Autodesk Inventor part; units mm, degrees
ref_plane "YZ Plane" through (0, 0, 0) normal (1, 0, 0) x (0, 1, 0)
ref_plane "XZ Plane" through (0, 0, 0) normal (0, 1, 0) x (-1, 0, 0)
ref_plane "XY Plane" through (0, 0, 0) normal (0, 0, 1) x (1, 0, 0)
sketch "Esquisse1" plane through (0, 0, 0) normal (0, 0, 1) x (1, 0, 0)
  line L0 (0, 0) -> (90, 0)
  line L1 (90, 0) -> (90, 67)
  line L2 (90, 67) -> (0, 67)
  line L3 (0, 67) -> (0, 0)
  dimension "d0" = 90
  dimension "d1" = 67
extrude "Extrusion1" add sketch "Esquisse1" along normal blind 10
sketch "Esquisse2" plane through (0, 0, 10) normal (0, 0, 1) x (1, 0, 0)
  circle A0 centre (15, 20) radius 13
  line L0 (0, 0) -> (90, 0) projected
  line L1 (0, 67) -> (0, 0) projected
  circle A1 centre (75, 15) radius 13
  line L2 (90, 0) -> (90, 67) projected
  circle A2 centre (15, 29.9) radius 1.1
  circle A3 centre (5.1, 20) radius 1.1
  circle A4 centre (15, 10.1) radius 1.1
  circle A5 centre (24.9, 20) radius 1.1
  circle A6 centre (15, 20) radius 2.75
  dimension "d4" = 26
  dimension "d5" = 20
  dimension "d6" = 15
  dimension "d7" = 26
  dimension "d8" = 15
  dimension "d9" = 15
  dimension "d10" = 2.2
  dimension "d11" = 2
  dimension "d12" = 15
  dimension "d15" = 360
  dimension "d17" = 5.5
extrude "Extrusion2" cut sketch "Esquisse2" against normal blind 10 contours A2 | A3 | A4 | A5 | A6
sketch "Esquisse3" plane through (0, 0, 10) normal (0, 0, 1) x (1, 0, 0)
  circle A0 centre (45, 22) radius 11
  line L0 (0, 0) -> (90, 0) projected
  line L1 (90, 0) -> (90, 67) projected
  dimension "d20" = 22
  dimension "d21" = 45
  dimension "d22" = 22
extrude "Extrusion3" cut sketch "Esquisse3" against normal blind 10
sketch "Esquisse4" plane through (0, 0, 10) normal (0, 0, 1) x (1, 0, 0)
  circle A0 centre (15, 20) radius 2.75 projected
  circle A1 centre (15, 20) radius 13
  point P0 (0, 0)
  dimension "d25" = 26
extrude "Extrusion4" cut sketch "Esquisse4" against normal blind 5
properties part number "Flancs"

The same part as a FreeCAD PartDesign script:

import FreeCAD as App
import Part
import Sketcher
from FreeCAD import Vector


def add_polygon(sketch, points):
    """Adds a closed chain of lines whose ends are joined by coincident constraints."""
    first, n = sketch.GeometryCount, len(points)
    for a, b in zip(points, points[1:] + points[:1]):
        sketch.addGeometry(Part.LineSegment(App.Vector(*a, 0), App.Vector(*b, 0)), False)
    for i in range(n):
        sketch.addConstraint(Sketcher.Constraint("Coincident", first + i, 2, first + (i + 1) % n, 1))

doc = App.newDocument("Part")
body = doc.addObject("PartDesign::Body", "Body")

# Sketch on XY plane
sketch1 = body.newObject("Sketcher::SketchObject", "Sketch")
sketch1.AttachmentSupport = (doc.getObject("XY_Plane"), [""])
sketch1.MapMode = "FlatFace"
add_polygon(sketch1, [(0, 67), (0, 0), (90, 0), (90, 67)])  # lines 0-3
sketch1.addConstraint(Sketcher.Constraint("Vertical", 0))
sketch1.addConstraint(Sketcher.Constraint("Horizontal", 1))
sketch1.addConstraint(Sketcher.Constraint("Vertical", 2))
sketch1.addConstraint(Sketcher.Constraint("Horizontal", 3))
sketch1.addConstraint(Sketcher.Constraint("Coincident", 0, 2, -1, 1))
sketch1.addConstraint(Sketcher.Constraint("DistanceX", 1, 1, 1, 2, 90.0))
sketch1.addConstraint(Sketcher.Constraint("DistanceY", 0, 2, 0, 1, 67.0))
pad1 = body.newObject("PartDesign::Pad", "Pad")
pad1.Profile = sketch1
pad1.Length = 10

# Sketch on XY plane
sketch2 = body.newObject("Sketcher::SketchObject", "Sketch001")
sketch2.AttachmentSupport = (doc.getObject("XY_Plane"), [""])
sketch2.MapMode = "FlatFace"
sketch2.AttachmentOffset = App.Placement(Vector(0, 0, 10), App.Rotation())
sketch2.addGeometry(Part.Circle(Vector(15, 29.9, 0), Vector(0, 0, 1), 1.1), False)
sketch2.addGeometry(Part.Circle(Vector(5.1, 20, 0), Vector(0, 0, 1), 1.1), False)
sketch2.addGeometry(Part.Circle(Vector(15, 10.1, 0), Vector(0, 0, 1), 1.1), False)
sketch2.addGeometry(Part.Circle(Vector(24.9, 20, 0), Vector(0, 0, 1), 1.1), False)
sketch2.addGeometry(Part.Circle(Vector(15, 20, 0), Vector(0, 0, 1), 2.75), False)
sketch2.addConstraint(Sketcher.Constraint("Equal", 0, 1))
sketch2.addConstraint(Sketcher.Constraint("Equal", 1, 2))
sketch2.addConstraint(Sketcher.Constraint("Equal", 2, 3))
sketch2.addConstraint(Sketcher.Constraint("Horizontal", 1, 3, 3, 3))
sketch2.addConstraint(Sketcher.Constraint("Horizontal", 3, 3, 4, 3))
sketch2.addConstraint(Sketcher.Constraint("Vertical", 0, 3, 2, 3))
sketch2.addConstraint(Sketcher.Constraint("Vertical", 2, 3, 4, 3))
sketch2.addConstraint(Sketcher.Constraint("Diameter", 0, 2.2))
sketch2.addConstraint(Sketcher.Constraint("Diameter", 4, 5.5))
sketch2.addConstraint(Sketcher.Constraint("DistanceX", -1, 1, 0, 3, 15.0))
sketch2.addConstraint(Sketcher.Constraint("DistanceY", -1, 1, 1, 3, 20.0))
sketch2.addConstraint(Sketcher.Constraint("DistanceY", -1, 1, 0, 3, 29.9))
sketch2.addConstraint(Sketcher.Constraint("DistanceX", -1, 1, 1, 3, 5.1))
sketch2.addConstraint(Sketcher.Constraint("DistanceY", -1, 1, 2, 3, 10.1))
sketch2.addConstraint(Sketcher.Constraint("DistanceX", -1, 1, 3, 3, 24.9))
pocket1 = body.newObject("PartDesign::Pocket", "Pocket")
pocket1.Profile = sketch2
pocket1.Length = 10

# Sketch on XY plane
sketch3 = body.newObject("Sketcher::SketchObject", "Sketch002")
sketch3.AttachmentSupport = (doc.getObject("XY_Plane"), [""])
sketch3.MapMode = "FlatFace"
sketch3.AttachmentOffset = App.Placement(Vector(0, 0, 10), App.Rotation())
sketch3.addGeometry(Part.Circle(Vector(45, 22, 0), Vector(0, 0, 1), 11), False)
sketch3.addConstraint(Sketcher.Constraint("Diameter", 0, 22.0))
sketch3.addConstraint(Sketcher.Constraint("DistanceX", -1, 1, 0, 3, 45.0))
sketch3.addConstraint(Sketcher.Constraint("DistanceY", -1, 1, 0, 3, 22.0))
pocket2 = body.newObject("PartDesign::Pocket", "Pocket001")
pocket2.Profile = sketch3
pocket2.Length = 10

# Sketch on XY plane
sketch4 = body.newObject("Sketcher::SketchObject", "Sketch003")
sketch4.AttachmentSupport = (doc.getObject("XY_Plane"), [""])
sketch4.MapMode = "FlatFace"
sketch4.AttachmentOffset = App.Placement(Vector(0, 0, 10), App.Rotation())
sketch4.addGeometry(Part.Circle(Vector(15, 20, 0), Vector(0, 0, 1), 13), False)
sketch4.addGeometry(Part.Circle(Vector(15, 20, 0), Vector(0, 0, 1), 2.75), False)
sketch4.addConstraint(Sketcher.Constraint("Coincident", 1, 3, 0, 3))
sketch4.addConstraint(Sketcher.Constraint("Diameter", 0, 26.0))
sketch4.addConstraint(Sketcher.Constraint("Diameter", 1, 5.5))
sketch4.addConstraint(Sketcher.Constraint("DistanceX", -1, 1, 0, 3, 15.0))
sketch4.addConstraint(Sketcher.Constraint("DistanceY", -1, 1, 0, 3, 20.0))
pocket3 = body.newObject("PartDesign::Pocket", "Pocket002")
pocket3.Profile = sketch4
pocket3.Length = 5

doc.recompute()
